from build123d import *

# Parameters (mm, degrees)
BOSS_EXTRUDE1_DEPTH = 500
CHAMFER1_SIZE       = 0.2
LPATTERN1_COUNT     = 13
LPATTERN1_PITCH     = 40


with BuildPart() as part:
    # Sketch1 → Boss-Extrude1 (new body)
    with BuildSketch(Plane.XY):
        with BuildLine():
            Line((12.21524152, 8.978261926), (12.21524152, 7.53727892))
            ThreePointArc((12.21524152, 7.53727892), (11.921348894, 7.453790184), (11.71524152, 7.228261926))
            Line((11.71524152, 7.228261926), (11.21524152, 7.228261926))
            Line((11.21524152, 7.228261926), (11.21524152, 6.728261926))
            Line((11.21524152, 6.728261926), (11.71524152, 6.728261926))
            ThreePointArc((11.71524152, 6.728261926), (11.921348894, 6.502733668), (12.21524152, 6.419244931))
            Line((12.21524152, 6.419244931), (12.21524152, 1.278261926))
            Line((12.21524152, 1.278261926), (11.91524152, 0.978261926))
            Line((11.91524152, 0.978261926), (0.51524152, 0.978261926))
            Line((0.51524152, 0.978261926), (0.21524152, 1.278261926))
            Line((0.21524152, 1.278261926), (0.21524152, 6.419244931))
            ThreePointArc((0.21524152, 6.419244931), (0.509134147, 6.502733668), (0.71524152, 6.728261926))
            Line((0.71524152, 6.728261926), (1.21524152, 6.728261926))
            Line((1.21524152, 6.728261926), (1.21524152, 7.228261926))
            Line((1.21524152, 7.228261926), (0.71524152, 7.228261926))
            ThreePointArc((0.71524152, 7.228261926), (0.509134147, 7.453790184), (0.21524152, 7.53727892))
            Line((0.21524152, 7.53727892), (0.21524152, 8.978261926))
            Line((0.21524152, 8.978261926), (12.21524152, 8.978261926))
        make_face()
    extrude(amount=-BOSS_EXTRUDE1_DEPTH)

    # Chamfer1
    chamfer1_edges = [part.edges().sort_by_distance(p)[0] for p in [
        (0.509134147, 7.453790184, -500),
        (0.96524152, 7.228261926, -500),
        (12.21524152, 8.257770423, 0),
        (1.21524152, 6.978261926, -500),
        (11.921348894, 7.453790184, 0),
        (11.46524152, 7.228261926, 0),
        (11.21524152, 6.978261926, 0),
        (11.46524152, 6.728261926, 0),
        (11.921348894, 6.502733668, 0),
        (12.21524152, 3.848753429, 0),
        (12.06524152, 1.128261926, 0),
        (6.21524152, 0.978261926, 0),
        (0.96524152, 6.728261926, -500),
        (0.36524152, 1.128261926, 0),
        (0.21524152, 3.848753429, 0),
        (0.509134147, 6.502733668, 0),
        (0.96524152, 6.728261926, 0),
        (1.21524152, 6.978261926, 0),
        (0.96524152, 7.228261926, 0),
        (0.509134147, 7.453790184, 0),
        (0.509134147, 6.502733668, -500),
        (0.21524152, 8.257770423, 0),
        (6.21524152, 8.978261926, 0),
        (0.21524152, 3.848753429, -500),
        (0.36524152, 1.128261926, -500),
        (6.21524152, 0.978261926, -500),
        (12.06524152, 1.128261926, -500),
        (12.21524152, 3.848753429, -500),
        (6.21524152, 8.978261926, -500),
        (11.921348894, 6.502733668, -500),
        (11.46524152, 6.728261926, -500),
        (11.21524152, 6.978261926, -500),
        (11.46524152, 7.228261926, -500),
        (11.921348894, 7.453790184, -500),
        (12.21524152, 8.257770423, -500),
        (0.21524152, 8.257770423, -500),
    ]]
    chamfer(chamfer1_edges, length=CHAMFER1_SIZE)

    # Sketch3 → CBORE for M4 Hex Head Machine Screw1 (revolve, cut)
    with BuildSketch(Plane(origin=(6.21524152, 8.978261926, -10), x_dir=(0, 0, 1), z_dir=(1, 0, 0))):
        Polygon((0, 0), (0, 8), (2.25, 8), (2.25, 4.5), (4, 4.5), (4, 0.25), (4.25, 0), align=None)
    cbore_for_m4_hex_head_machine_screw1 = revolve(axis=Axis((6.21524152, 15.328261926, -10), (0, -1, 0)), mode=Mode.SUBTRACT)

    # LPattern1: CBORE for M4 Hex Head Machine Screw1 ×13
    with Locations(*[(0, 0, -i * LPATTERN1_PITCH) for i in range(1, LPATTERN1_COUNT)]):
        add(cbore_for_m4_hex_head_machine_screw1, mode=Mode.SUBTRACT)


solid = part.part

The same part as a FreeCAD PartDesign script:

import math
import FreeCAD as App
import Part
import Sketcher

V = App.Vector
Q = App.Units.Quantity


def edges_at(feature, points):
    """Names of the edges that pass closest to the given points."""
    edges = feature.Shape.Edges
    near = lambda p: min(range(len(edges)), key=lambda i: edges[i].distToShape(Part.Vertex(*p))[0])
    return sorted({f"Edge{near(p) + 1}" for p in points})


def add_polygon(sketch, points):
    """Adds a closed chain of lines whose ends are joined by coincident constraints."""
    first, n = sketch.GeometryCount, len(points)
    for a, b in zip(points, points[1:] + points[:1]):
        sketch.addGeometry(Part.LineSegment(App.Vector(*a, 0), App.Vector(*b, 0)), False)
    for i in range(n):
        sketch.addConstraint(Sketcher.Constraint("Coincident", first + i, 2, first + (i + 1) % n, 1))

doc = App.newDocument("Part")
body = doc.addObject("PartDesign::Body", "Body")

# Sketch on XY plane
sketch1 = doc.addObject("Sketcher::SketchObject", "Sketch")
body.addObject(sketch1)
sketch1.AttachmentSupport = (doc.XY_Plane, [""])
sketch1.MapMode = "FlatFace"
sketch1.addGeometry(Part.LineSegment(V(12.215242, 7.537279, 0), V(12.215242, 8.978262, 0)), False)
sketch1.addGeometry(Part.LineSegment(V(12.215242, 8.978262, 0), V(0.215242, 8.978262, 0)), False)
sketch1.addGeometry(Part.LineSegment(V(0.215242, 8.978262, 0), V(0.215242, 7.537279, 0)), False)
sketch1.addGeometry(Part.ArcOfCircle(Part.Circle(V(0.215242, 6.978262, 0), V(0, 0, 1), 0.559017), math.radians(26.565051), math.radians(90)), False)
sketch1.addGeometry(Part.LineSegment(V(0.715242, 7.228262, 0), V(1.215242, 7.228262, 0)), False)
sketch1.addGeometry(Part.LineSegment(V(1.215242, 7.228262, 0), V(1.215242, 6.728262, 0)), False)
sketch1.addGeometry(Part.LineSegment(V(1.215242, 6.728262, 0), V(0.715242, 6.728262, 0)), False)
sketch1.addGeometry(Part.ArcOfCircle(Part.Circle(V(0.215242, 6.978262, 0), V(0, 0, 1), 0.559017), math.radians(-90), math.radians(-26.565051)), False)
sketch1.addGeometry(Part.LineSegment(V(0.215242, 6.419245, 0), V(0.215242, 1.278262, 0)), False)
sketch1.addGeometry(Part.LineSegment(V(0.215242, 1.278262, 0), V(0.515242, 0.978262, 0)), False)
sketch1.addGeometry(Part.LineSegment(V(0.515242, 0.978262, 0), V(11.915242, 0.978262, 0)), False)
sketch1.addGeometry(Part.LineSegment(V(11.915242, 0.978262, 0), V(12.215242, 1.278262, 0)), False)
sketch1.addGeometry(Part.LineSegment(V(12.215242, 1.278262, 0), V(12.215242, 6.419245, 0)), False)
sketch1.addGeometry(Part.ArcOfCircle(Part.Circle(V(12.215242, 6.978262, 0), V(0, 0, 1), 0.559017), math.radians(-153.434949), math.radians(-90)), False)
sketch1.addGeometry(Part.LineSegment(V(11.715242, 6.728262, 0), V(11.215242, 6.728262, 0)), False)
sketch1.addGeometry(Part.LineSegment(V(11.215242, 6.728262, 0), V(11.215242, 7.228262, 0)), False)
sketch1.addGeometry(Part.LineSegment(V(11.215242, 7.228262, 0), V(11.715242, 7.228262, 0)), False)
sketch1.addGeometry(Part.ArcOfCircle(Part.Circle(V(12.215242, 6.978262, 0), V(0, 0, 1), 0.559017), math.radians(90), math.radians(153.434949)), False)
sketch1.addConstraint(Sketcher.Constraint("Coincident", 0, 2, 1, 1))
sketch1.addConstraint(Sketcher.Constraint("Coincident", 1, 2, 2, 1))
sketch1.addConstraint(Sketcher.Constraint("Coincident", 2, 2, 3, 2))
sketch1.addConstraint(Sketcher.Constraint("Coincident", 3, 1, 4, 1))
sketch1.addConstraint(Sketcher.Constraint("Coincident", 4, 2, 5, 1))
sketch1.addConstraint(Sketcher.Constraint("Coincident", 5, 2, 6, 1))
sketch1.addConstraint(Sketcher.Constraint("Coincident", 6, 2, 7, 2))
sketch1.addConstraint(Sketcher.Constraint("Coincident", 7, 1, 8, 1))
sketch1.addConstraint(Sketcher.Constraint("Coincident", 8, 2, 9, 1))
sketch1.addConstraint(Sketcher.Constraint("Coincident", 9, 2, 10, 1))
sketch1.addConstraint(Sketcher.Constraint("Coincident", 10, 2, 11, 1))
sketch1.addConstraint(Sketcher.Constraint("Coincident", 11, 2, 12, 1))
sketch1.addConstraint(Sketcher.Constraint("Coincident", 12, 2, 13, 2))
sketch1.addConstraint(Sketcher.Constraint("Coincident", 13, 1, 14, 1))
sketch1.addConstraint(Sketcher.Constraint("Coincident", 14, 2, 15, 1))
sketch1.addConstraint(Sketcher.Constraint("Coincident", 15, 2, 16, 1))
sketch1.addConstraint(Sketcher.Constraint("Coincident", 16, 2, 17, 2))
sketch1.addConstraint(Sketcher.Constraint("Coincident", 17, 1, 0, 1))
sketch1.addConstraint(Sketcher.Constraint("Vertical", 0))
sketch1.addConstraint(Sketcher.Constraint("Horizontal", 1))
sketch1.addConstraint(Sketcher.Constraint("Vertical", 2))
sketch1.addConstraint(Sketcher.Constraint("Horizontal", 4))
sketch1.addConstraint(Sketcher.Constraint("Vertical", 5))
sketch1.addConstraint(Sketcher.Constraint("Horizontal", 6))
sketch1.addConstraint(Sketcher.Constraint("Vertical", 8))
sketch1.addConstraint(Sketcher.Constraint("Horizontal", 10))
sketch1.addConstraint(Sketcher.Constraint("Vertical", 12))
sketch1.addConstraint(Sketcher.Constraint("Horizontal", 14))
sketch1.addConstraint(Sketcher.Constraint("Vertical", 15))
sketch1.addConstraint(Sketcher.Constraint("Horizontal", 16))
sketch1.addConstraint(Sketcher.Constraint("Coincident", 7, 3, 3, 3))
sketch1.addConstraint(Sketcher.Constraint("Coincident", 17, 3, 13, 3))
sketch1.addConstraint(Sketcher.Constraint("Equal", 3, 7))
sketch1.addConstraint(Sketcher.Constraint("Equal", 7, 13))
sketch1.addConstraint(Sketcher.Constraint("Equal", 13, 17))
sketch1.addConstraint(Sketcher.Constraint("Perpendicular", 9, 11))
sketch1.addConstraint(Sketcher.Constraint("Horizontal", 7, 3, 13, 3))
sketch1.addConstraint(Sketcher.Constraint("Horizontal", 8, 2, 11, 2))
sketch1.addConstraint(Sketcher.Constraint("Horizontal", 6, 2, 13, 1))
sketch1.addConstraint(Sketcher.Constraint("Horizontal", 4, 2, 15, 2))
sketch1.addConstraint(Sketcher.Constraint("Vertical", 17, 3, 0, 2))
sketch1.addConstraint(Sketcher.Constraint("Vertical", 7, 3, 1, 2))
sketch1.addConstraint(Sketcher.Constraint("Vertical", 3, 1, 6, 2))
sketch1.addConstraint(Sketcher.Constraint("Vertical", 2, 2, 7, 1))
sketch1.addConstraint(Sketcher.Constraint("Vertical", 0, 2, 11, 2))
sketch1.addConstraint(Sketcher.Constraint("Equal", 6, 14))
sketch1.addConstraint(Sketcher.Constraint("Equal", 16, 5))
sketch1.addConstraint(Sketcher.Constraint("Equal", 9, 11))
sketch1.addConstraint(Sketcher.Constraint("DistanceX", 1, 2, 1, 1, 12.0))
sketch1.addConstraint(Sketcher.Constraint("DistanceX", 4, 1, 4, 2, 0.5))
sketch1.addConstraint(Sketcher.Constraint("DistanceX", 10, 1, 10, 2, 11.4))
sketch1.addConstraint(Sketcher.Constraint("DistanceY", 13, 3, 0, 2, 2.0))
sketch1.addConstraint(Sketcher.Constraint("DistanceX", 3, 3, 4, 2, 1.0))
sketch1.addConstraint(Sketcher.Constraint("DistanceY", 9, 2, 7, 3, 6.0))
sketch1.addConstraint(Sketcher.Constraint("DistanceX", -1, 1, 3, 3, 0.215242))
sketch1.addConstraint(Sketcher.Constraint("DistanceY", -1, 1, 3, 3, 6.978262))
pad1 = doc.addObject("PartDesign::Pad", "Pad")
body.addObject(pad1)
pad1.Profile = sketch1
pad1.Length = 500
pad1.Reversed = True
doc.recompute()

chamfer = doc.addObject("PartDesign::Chamfer", "Chamfer")
body.addObject(chamfer)
chamfer.Base = (pad1, edges_at(pad1, [
    (0.509, 7.454, -500),
    (0.965, 7.228, -500),
    (12.215, 8.258, 0),
    (1.215, 6.978, -500),
    (11.921, 7.454, 0),
    (11.465, 7.228, 0),
    (11.215, 6.978, 0),
    (11.465, 6.728, 0),
    (11.921, 6.503, 0),
    (12.215, 3.849, 0),
    (12.065, 1.128, 0),
    (6.215, 0.978, 0),
    (0.965, 6.728, -500),
    (0.365, 1.128, 0),
    (0.215, 3.849, 0),
    (0.509, 6.503, 0),
    (0.965, 6.728, 0),
    (1.215, 6.978, 0),
    (0.965, 7.228, 0),
    (0.509, 7.454, 0),
    (0.509, 6.503, -500),
    (0.215, 8.258, 0),
    (6.215, 8.978, 0),
    (0.215, 3.849, -500),
    (0.365, 1.128, -500),
    (6.215, 0.978, -500),
    (12.065, 1.128, -500),
    (12.215, 3.849, -500),
    (6.215, 8.978, -500),
    (11.921, 6.503, -500),
    (11.465, 6.728, -500),
    (11.215, 6.978, -500),
    (11.465, 7.228, -500),
    (11.921, 7.454, -500),
    (12.215, 8.258, -500),
    (0.215, 8.258, -500),
]))
chamfer.Size = 0.2

# Sketch on YZ plane
sketch2 = doc.addObject("Sketcher::SketchObject", "Sketch001")
body.addObject(sketch2)
sketch2.AttachmentSupport = (doc.YZ_Plane, [""])
sketch2.MapMode = "FlatFace"
sketch2.AttachmentOffset = App.Placement(V(0, 0, 6.215242), App.Rotation())
add_polygon(sketch2, [(0.978262, -10), (8.978262, -10), (8.978262, -5.75), (8.728262, -6), (4.478262, -6), (4.478262, -7.75), (0.978262, -7.75)])  # lines 0-6
sketch2.addGeometry(Part.LineSegment(V(8.978262, -10, 0), V(0.978262, -10, 0)), True)  # axis
sketch2.addConstraint(Sketcher.Constraint("Horizontal", 0))
sketch2.addConstraint(Sketcher.Constraint("Vertical", 1))
sketch2.addConstraint(Sketcher.Constraint("Horizontal", 3))
sketch2.addConstraint(Sketcher.Constraint("Vertical", 4))
sketch2.addConstraint(Sketcher.Constraint("Horizontal", 5))
sketch2.addConstraint(Sketcher.Constraint("Vertical", 6))
sketch2.addConstraint(Sketcher.Constraint("Horizontal", 7))
sketch2.addConstraint(Sketcher.Constraint("Coincident", 7, 1, 0, 2))
sketch2.addConstraint(Sketcher.Constraint("Vertical", 5, 2, 7, 2))
sketch2.addConstraint(Sketcher.Constraint("Equal", 3, 1))
sketch2.addConstraint(Sketcher.Constraint("DistanceX", 0, 1, 0, 2, 8.0))
sketch2.addConstraint(Sketcher.Constraint("Angle", 2, Q("-135 deg")))
sketch2.addConstraint(Sketcher.Constraint("DistanceX", 5, 2, 5, 1, 3.5))
sketch2.addConstraint(Sketcher.Constraint("DistanceY", 0, 2, -1, 1, 10.0))
sketch2.addConstraint(Sketcher.Constraint("DistanceY", 2, 2, -1, 1, 6.0))
sketch2.addConstraint(Sketcher.Constraint("DistanceY", 4, 2, 1, 2, 2.0))
sketch2.addConstraint(Sketcher.Constraint("DistanceX", -1, 1, 0, 2, 8.978262))
groove = doc.addObject("PartDesign::Groove", "Groove")
body.addObject(groove)
groove.Profile = sketch2
groove.ReferenceAxis = (sketch2, ["Axis0"])
groove.Angle = 360
doc.recompute()

linearpattern = doc.addObject("PartDesign::LinearPattern", "LinearPattern")
body.addObject(linearpattern)
linearpattern.Originals = [groove]
linearpattern.Direction = (doc.Z_Axis, [""])
linearpattern.Mode = "offset"
linearpattern.Offset = 40
linearpattern.Occurrences = 13
linearpattern.Reversed = True
body.Tip = linearpattern

doc.recompute()
